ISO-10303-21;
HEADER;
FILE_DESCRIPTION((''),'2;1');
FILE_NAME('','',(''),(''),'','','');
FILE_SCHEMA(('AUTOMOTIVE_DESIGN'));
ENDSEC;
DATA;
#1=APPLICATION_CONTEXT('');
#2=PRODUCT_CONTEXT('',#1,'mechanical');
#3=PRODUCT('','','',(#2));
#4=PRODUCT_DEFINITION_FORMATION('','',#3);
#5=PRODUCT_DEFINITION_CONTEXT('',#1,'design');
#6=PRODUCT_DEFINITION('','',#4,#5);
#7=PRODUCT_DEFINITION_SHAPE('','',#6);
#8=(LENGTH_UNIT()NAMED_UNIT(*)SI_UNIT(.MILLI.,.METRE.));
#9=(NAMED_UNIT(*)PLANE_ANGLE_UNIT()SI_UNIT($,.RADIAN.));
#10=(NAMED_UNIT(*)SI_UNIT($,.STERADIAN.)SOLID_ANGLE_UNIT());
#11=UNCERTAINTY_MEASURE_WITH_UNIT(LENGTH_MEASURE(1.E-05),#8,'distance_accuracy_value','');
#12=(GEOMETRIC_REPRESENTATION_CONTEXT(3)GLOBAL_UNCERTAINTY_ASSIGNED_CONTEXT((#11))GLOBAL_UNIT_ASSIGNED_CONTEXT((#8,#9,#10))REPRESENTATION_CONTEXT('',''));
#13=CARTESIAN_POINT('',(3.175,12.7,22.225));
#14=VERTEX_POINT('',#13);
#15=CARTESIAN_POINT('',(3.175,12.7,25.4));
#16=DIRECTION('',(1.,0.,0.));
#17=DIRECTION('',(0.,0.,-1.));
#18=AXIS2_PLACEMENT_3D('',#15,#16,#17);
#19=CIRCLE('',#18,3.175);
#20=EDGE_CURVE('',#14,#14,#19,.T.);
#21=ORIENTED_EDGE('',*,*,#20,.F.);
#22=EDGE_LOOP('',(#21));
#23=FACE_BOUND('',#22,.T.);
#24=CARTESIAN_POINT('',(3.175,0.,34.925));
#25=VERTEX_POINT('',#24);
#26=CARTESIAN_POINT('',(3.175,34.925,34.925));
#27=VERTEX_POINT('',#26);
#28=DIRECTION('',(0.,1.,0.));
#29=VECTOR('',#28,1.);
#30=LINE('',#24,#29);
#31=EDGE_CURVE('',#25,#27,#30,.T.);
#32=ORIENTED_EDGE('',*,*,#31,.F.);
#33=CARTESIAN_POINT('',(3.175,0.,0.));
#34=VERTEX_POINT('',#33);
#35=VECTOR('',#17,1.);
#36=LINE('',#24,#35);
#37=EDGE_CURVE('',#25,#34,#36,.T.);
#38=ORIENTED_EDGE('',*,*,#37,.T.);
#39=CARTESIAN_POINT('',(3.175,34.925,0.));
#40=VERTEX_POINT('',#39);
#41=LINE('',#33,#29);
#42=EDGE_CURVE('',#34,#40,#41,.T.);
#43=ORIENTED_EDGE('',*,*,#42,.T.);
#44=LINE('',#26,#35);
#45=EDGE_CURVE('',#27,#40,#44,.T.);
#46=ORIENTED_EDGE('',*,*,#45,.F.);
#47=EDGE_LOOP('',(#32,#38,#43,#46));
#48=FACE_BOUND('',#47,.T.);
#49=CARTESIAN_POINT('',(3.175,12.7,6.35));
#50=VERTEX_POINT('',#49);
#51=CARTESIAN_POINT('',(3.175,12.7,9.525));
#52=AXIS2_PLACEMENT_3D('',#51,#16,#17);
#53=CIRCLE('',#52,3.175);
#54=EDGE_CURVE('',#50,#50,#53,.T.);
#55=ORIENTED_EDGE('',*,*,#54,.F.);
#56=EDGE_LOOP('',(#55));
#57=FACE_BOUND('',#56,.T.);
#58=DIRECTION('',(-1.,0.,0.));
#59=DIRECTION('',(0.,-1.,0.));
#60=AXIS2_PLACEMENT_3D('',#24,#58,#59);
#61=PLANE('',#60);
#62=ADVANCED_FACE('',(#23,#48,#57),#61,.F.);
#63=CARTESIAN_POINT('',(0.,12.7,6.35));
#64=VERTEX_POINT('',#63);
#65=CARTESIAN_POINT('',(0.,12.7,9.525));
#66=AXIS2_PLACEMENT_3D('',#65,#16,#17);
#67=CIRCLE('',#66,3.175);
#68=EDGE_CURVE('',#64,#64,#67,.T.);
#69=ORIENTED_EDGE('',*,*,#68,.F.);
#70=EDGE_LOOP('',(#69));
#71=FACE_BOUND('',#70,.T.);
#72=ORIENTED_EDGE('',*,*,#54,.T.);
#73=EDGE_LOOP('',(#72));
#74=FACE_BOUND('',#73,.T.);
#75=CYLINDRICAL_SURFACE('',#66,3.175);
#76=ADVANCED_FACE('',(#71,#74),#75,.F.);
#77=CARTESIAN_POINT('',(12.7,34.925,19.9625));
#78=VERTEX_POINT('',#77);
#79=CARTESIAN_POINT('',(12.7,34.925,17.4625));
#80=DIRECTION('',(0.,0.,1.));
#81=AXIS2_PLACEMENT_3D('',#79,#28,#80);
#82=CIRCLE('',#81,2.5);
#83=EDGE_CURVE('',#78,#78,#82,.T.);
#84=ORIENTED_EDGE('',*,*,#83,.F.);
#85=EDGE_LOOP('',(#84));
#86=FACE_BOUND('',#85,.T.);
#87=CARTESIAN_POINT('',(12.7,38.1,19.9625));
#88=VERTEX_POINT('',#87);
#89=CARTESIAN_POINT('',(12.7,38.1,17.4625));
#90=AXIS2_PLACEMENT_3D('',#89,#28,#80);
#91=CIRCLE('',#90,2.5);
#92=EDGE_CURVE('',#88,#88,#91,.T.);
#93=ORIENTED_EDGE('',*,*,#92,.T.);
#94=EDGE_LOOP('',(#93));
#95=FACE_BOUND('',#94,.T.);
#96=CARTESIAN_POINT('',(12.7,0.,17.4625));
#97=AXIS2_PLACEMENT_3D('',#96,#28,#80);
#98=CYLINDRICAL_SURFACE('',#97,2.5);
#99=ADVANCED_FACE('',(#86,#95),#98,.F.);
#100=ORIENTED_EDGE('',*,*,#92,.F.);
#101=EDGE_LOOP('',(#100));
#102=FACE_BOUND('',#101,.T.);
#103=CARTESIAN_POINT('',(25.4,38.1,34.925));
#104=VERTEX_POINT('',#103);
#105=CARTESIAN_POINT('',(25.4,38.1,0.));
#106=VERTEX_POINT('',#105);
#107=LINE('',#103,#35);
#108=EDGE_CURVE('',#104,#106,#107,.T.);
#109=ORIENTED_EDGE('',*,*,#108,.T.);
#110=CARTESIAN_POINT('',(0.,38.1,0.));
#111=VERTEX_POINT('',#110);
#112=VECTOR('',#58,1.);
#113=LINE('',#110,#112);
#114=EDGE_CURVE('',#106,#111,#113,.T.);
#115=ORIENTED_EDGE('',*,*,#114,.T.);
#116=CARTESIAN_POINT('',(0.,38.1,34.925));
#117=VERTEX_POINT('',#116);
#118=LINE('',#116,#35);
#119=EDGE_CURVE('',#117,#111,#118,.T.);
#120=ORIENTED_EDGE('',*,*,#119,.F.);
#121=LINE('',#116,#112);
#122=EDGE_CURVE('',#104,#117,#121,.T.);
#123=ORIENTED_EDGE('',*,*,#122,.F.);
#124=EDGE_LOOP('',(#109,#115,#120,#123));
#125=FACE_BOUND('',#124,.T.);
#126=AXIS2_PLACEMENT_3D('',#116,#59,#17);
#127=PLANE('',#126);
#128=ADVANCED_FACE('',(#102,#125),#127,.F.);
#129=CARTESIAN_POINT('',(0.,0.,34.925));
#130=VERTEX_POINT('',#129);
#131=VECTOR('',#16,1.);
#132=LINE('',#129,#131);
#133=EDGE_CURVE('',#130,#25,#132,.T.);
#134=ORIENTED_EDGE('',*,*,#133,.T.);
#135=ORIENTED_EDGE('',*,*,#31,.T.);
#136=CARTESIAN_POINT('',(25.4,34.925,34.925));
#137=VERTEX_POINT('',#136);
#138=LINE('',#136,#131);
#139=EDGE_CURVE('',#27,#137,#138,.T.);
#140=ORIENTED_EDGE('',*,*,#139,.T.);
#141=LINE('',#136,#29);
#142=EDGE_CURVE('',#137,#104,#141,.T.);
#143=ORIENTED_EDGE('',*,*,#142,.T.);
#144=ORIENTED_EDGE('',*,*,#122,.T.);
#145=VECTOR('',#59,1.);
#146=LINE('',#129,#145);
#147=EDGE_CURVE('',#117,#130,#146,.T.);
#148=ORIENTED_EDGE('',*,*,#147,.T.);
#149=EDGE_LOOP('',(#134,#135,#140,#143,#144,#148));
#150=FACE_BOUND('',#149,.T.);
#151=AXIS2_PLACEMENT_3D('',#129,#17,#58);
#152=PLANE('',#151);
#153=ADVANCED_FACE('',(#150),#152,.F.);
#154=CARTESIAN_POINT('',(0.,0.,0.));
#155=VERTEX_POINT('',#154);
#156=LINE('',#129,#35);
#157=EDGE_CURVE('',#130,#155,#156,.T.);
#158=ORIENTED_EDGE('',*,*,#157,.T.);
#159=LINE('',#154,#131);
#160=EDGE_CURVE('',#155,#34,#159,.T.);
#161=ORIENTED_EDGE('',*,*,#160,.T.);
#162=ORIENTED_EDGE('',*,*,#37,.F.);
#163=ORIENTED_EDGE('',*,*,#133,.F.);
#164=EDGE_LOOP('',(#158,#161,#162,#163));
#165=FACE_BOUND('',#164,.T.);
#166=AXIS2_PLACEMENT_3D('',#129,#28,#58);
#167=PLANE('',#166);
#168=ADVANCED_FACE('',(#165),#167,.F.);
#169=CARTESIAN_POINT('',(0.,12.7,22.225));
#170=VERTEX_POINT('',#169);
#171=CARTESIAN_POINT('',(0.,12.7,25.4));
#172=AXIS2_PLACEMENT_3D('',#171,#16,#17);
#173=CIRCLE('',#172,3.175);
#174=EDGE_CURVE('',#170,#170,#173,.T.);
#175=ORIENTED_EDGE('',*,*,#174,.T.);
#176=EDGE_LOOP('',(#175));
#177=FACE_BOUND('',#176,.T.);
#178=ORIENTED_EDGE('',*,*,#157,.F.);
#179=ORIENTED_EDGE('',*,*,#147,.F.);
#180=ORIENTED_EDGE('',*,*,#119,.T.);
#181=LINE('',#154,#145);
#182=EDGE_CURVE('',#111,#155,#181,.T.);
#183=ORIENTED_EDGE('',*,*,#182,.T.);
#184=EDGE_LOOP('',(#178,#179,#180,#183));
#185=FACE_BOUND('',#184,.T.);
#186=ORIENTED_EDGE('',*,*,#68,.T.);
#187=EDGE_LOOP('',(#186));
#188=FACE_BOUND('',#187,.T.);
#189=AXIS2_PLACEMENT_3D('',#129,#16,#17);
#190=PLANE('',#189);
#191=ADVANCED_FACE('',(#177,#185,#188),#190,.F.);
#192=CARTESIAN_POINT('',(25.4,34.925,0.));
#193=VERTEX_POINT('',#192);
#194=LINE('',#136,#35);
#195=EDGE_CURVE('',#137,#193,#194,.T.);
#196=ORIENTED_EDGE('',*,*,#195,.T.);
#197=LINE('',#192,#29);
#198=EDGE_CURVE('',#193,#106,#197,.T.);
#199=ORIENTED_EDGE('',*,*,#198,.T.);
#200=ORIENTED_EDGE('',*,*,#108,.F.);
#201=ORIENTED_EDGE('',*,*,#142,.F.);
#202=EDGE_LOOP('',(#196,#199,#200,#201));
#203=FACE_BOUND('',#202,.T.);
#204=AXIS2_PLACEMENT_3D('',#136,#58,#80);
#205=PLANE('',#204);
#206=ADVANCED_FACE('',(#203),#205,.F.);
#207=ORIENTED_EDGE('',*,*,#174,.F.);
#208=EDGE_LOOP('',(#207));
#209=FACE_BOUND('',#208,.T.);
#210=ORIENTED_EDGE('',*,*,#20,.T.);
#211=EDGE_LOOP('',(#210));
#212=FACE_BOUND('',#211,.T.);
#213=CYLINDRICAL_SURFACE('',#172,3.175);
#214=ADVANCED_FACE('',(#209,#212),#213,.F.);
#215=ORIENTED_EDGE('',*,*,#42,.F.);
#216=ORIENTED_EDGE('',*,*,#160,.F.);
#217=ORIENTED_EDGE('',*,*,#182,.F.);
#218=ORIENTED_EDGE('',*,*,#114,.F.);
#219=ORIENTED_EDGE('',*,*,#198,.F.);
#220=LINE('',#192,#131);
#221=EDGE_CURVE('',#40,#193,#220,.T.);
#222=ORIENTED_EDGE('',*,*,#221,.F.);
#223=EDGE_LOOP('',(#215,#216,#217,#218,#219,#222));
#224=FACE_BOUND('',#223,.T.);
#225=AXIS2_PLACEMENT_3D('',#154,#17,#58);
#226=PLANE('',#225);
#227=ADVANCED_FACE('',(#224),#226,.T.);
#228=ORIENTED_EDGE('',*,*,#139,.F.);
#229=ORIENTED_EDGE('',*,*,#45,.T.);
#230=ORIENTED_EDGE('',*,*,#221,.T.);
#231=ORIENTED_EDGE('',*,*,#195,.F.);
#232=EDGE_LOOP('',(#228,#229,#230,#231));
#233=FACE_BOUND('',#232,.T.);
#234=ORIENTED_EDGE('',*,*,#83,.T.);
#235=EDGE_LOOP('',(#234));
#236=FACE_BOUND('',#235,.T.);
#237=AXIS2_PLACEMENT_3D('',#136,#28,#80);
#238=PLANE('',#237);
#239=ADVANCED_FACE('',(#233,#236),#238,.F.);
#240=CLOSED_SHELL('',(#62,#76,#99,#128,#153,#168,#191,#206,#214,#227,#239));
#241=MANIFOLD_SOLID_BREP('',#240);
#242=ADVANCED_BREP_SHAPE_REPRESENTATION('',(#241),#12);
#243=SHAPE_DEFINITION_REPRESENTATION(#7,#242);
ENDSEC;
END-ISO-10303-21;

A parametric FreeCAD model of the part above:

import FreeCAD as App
import Part
import Sketcher
Q = App.Units.Quantity

doc = App.newDocument("Part")
params = doc.addObject("Spreadsheet::Sheet", "Params")
for row, (alias, value) in enumerate([
    ("sketch1_width", "1 in"),
    ("sketch1_height", "1.5 in"),
    ("sketch1_width2", "0.125 in"),
    ("pad1_length", "1.375 in"),
    ("sketch2_diameter", "0.25 in"),
], start=1):
    params.set(f"A{row}", alias)
    params.set(f"B{row}", "=" + value)
    params.setAlias(f"B{row}", alias)

body = doc.addObject("PartDesign::Body", "Body")

# Sketch on XY plane
sketch1 = body.newObject("Sketcher::SketchObject", "Sketch")
sketch1.AttachmentSupport = (doc.getObject("XY_Plane"), [""])
sketch1.MapMode = "FlatFace"
sketch1.addGeometry([
    Part.LineSegment(App.Vector(0, 0, 0), App.Vector(3.2, 0, 0)),  # 0
    Part.LineSegment(App.Vector(3.2, 0, 0), App.Vector(3.2, 34.9, 0)),  # 1
    Part.LineSegment(App.Vector(3.2, 34.9, 0), App.Vector(25.4, 34.9, 0)),  # 2
    Part.LineSegment(App.Vector(25.4, 34.9, 0), App.Vector(25.4, 38.1, 0)),  # 3
    Part.LineSegment(App.Vector(25.4, 38.1, 0), App.Vector(0, 38.1, 0)),  # 4
    Part.LineSegment(App.Vector(0, 38.1, 0), App.Vector(0, 0, 0)),  # 5
], False)
sketch1.addConstraint([
    Sketcher.Constraint("Coincident", 0, 2, 1, 1),
    Sketcher.Constraint("Coincident", 1, 2, 2, 1),
    Sketcher.Constraint("Coincident", 2, 2, 3, 1),
    Sketcher.Constraint("Coincident", 3, 2, 4, 1),
    Sketcher.Constraint("Coincident", 4, 2, 5, 1),
    Sketcher.Constraint("Coincident", 5, 2, 0, 1),
    Sketcher.Constraint("Horizontal", 0),
    Sketcher.Constraint("Vertical", 1),
    Sketcher.Constraint("Horizontal", 2),
    Sketcher.Constraint("Vertical", 3),
    Sketcher.Constraint("Horizontal", 4),
    Sketcher.Constraint("Vertical", 5),
    Sketcher.Constraint("Coincident", 5, 2, -1, 1),
    Sketcher.Constraint("Equal", 0, 3),
    Sketcher.Constraint("DistanceX", 4, 2, 4, 1, Q("1 in")),
    Sketcher.Constraint("DistanceY", 5, 2, 5, 1, Q("1.5 in")),
    Sketcher.Constraint("DistanceX", 0, 1, 0, 2, Q("0.125 in")),
])
sketch1.setExpression("Constraints[14]", "Params.sketch1_width")
sketch1.setExpression("Constraints[15]", "Params.sketch1_height")
sketch1.setExpression("Constraints[16]", "Params.sketch1_width2")
pad1 = body.newObject("PartDesign::Pad", "Pad")
pad1.Profile = sketch1
pad1.setExpression("Length", "Params.pad1_length")

# Sketch on YZ plane
sketch2 = body.newObject("Sketcher::SketchObject", "Sketch001")
sketch2.AttachmentSupport = (doc.getObject("YZ_Plane"), [""])
sketch2.MapMode = "FlatFace"
sketch2.AttachmentOffset = App.Placement(App.Vector(0, 0, 0.125 * 25.4), App.Rotation())
sketch2.addGeometry([
    Part.Circle(App.Vector(12.7, 25.4, 0), App.Vector(0, 0, 1), 3.2),
    Part.Circle(App.Vector(12.7, 9.5, 0), App.Vector(0, 0, 1), 3.2),
], False)
sketch2.addConstraint([
    Sketcher.Constraint("Equal", 0, 1),
    Sketcher.Constraint("Vertical", 0, 3, 1, 3),
    Sketcher.Constraint("Diameter", 0, Q("0.25 in")),
    Sketcher.Constraint("DistanceY", -1, 1, 0, 3, Q("1 in")),
    Sketcher.Constraint("DistanceX", -1, 1, 0, 3, Q("0.5 in")),
    Sketcher.Constraint("DistanceY", -1, 1, 1, 3, Q("0.375 in")),
])
sketch2.setExpression("Constraints[2]", "Params.sketch2_diameter")
pocket1 = body.newObject("PartDesign::Pocket", "Pocket")
pocket1.Profile = sketch2
pocket1.Type = "ThroughAll"

# Sketch on XZ plane
sketch3 = body.newObject("Sketcher::SketchObject", "Sketch002")
sketch3.AttachmentSupport = (doc.getObject("XZ_Plane"), [""])
sketch3.MapMode = "FlatFace"
sketch3.AttachmentOffset = App.Placement(App.Vector(0, 0, -1.5 * 25.4), App.Rotation())
sketch3.addGeometry(Part.Circle(App.Vector(12.7, 17.5, 0), App.Vector(0, 0, 1), 2.5), False)
sketch3.addConstraint([
    Sketcher.Constraint("DistanceX", -1, 1, 0, 3, Q("0.5 in")),
    Sketcher.Constraint("Diameter", 0, Q("5 mm")),
    Sketcher.Constraint("DistanceY", -1, 1, 0, 3, Q("0.6875 in")),
])
pocket2 = body.newObject("PartDesign::Pocket", "Pocket001")
pocket2.Profile = sketch3
pocket2.Type = "ThroughAll"
pocket2.Reversed = True

doc.recompute()
